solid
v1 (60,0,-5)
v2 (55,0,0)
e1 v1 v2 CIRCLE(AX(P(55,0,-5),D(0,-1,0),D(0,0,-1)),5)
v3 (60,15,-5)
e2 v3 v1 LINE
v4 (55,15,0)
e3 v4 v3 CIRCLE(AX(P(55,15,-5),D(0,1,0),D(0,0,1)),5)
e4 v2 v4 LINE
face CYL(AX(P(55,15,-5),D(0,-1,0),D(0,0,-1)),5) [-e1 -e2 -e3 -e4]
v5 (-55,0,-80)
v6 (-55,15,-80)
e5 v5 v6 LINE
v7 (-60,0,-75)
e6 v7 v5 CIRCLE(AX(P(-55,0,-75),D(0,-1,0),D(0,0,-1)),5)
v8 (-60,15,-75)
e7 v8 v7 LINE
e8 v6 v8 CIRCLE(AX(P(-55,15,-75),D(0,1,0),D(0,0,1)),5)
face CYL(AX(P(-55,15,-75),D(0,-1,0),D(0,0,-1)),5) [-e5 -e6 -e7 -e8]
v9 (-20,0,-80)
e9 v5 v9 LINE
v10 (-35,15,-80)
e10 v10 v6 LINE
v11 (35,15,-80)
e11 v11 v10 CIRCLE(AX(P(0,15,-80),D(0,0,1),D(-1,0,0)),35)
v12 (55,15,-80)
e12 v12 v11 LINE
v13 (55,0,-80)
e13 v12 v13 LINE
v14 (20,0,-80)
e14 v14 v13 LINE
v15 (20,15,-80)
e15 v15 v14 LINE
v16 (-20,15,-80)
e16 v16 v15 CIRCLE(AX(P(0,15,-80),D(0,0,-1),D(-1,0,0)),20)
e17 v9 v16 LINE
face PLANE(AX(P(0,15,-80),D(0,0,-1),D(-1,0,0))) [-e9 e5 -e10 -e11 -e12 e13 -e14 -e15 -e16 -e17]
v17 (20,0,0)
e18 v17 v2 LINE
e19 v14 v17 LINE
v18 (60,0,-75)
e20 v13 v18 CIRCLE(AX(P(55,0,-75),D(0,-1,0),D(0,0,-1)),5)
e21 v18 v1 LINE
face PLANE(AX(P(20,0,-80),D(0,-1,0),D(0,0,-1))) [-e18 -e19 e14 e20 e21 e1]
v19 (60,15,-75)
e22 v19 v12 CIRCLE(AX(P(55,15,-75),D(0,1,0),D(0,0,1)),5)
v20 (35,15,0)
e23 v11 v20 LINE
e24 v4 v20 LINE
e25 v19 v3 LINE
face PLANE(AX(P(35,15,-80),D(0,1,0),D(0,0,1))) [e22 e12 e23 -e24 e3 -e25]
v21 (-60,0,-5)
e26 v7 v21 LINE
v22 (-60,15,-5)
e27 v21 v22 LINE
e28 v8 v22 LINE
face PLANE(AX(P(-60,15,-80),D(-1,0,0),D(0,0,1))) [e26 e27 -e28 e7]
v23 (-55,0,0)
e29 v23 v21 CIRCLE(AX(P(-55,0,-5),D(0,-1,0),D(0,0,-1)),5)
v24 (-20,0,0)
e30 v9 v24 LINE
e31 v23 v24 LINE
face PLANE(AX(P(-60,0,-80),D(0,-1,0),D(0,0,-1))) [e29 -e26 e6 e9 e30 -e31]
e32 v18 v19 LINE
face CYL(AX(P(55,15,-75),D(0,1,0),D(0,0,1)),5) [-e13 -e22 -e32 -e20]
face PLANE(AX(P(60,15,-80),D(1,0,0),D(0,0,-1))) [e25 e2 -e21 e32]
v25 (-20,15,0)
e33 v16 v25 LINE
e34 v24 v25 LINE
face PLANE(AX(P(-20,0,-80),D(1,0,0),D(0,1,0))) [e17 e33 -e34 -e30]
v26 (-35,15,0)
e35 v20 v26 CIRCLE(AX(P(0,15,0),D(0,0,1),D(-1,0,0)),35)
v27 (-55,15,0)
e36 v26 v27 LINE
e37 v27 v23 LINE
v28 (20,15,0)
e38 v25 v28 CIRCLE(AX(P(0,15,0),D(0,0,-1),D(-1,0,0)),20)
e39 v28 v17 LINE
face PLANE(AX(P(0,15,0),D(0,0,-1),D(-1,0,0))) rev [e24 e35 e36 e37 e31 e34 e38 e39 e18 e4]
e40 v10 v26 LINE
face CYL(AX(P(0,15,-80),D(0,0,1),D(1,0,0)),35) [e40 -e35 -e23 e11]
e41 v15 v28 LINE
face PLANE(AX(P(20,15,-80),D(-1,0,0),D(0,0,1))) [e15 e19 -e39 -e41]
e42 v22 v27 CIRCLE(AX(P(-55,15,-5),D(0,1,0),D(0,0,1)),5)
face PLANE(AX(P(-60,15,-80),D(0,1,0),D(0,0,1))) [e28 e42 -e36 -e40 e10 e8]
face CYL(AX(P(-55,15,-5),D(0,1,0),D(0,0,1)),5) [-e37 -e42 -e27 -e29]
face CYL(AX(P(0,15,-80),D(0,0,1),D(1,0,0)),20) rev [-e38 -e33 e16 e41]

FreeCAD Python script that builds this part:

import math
import FreeCAD as App
import Part
import Sketcher

V = App.Vector


def edges_at(feature, points):
    """Names of the edges that pass closest to the given points."""
    edges = feature.Shape.Edges
    near = lambda p: min(range(len(edges)), key=lambda i: edges[i].distToShape(Part.Vertex(*p))[0])
    return sorted({f"Edge{near(p) + 1}" for p in points})

doc = App.newDocument("Part")
body = doc.addObject("PartDesign::Body", "Body")

# Sketch on XY plane
sketch1 = body.newObject("Sketcher::SketchObject", "Sketch")
sketch1.AttachmentSupport = (doc.getObject("XY_Plane"), [""])
sketch1.MapMode = "FlatFace"
sketch1.addGeometry([
    Part.LineSegment(V(-60, 0, 0), V(-20, 0, 0)),  # 0
    Part.LineSegment(V(-20, 0, 0), V(-20, 15, 0)),  # 1
    Part.ArcOfCircle(Part.Circle(V(0, 15, 0), V(0, 0, 1), 20), math.radians(0), math.radians(180)),  # 2
    Part.LineSegment(V(20, 15, 0), V(20, 0, 0)),  # 3
    Part.LineSegment(V(20, 0, 0), V(60, 0, 0)),  # 4
    Part.LineSegment(V(60, 0, 0), V(60, 15, 0)),  # 5
    Part.LineSegment(V(60, 15, 0), V(35, 15, 0)),  # 6
    Part.ArcOfCircle(Part.Circle(V(0, 15, 0), V(0, 0, 1), 35), math.radians(0), math.radians(180)),  # 7
    Part.LineSegment(V(-35, 15, 0), V(-60, 15, 0)),  # 8
    Part.LineSegment(V(-60, 15, 0), V(-60, 0, 0)),  # 9
], False)
sketch1.addConstraint([
    Sketcher.Constraint("Coincident", 0, 2, 1, 1),
    Sketcher.Constraint("Tangent", 1, 2, 2, 2),
    Sketcher.Constraint("Tangent", 2, 1, 3, 1),
    Sketcher.Constraint("Coincident", 3, 2, 4, 1),
    Sketcher.Constraint("Coincident", 4, 2, 5, 1),
    Sketcher.Constraint("Coincident", 5, 2, 6, 1),
    Sketcher.Constraint("Coincident", 6, 2, 7, 1),
    Sketcher.Constraint("Coincident", 7, 2, 8, 1),
    Sketcher.Constraint("Coincident", 8, 2, 9, 1),
    Sketcher.Constraint("Coincident", 9, 2, 0, 1),
    Sketcher.Constraint("Horizontal", 0),
    Sketcher.Constraint("Vertical", 1),
    Sketcher.Constraint("Vertical", 3),
    Sketcher.Constraint("Horizontal", 4),
    Sketcher.Constraint("Vertical", 5),
    Sketcher.Constraint("Horizontal", 6),
    Sketcher.Constraint("Horizontal", 8),
    Sketcher.Constraint("Vertical", 9),
    Sketcher.Constraint("Coincident", 7, 3, 2, 3),
    Sketcher.Constraint("Symmetric", 0, 2, 3, 2, -1, 1),
    Sketcher.Constraint("Symmetric", 5, 2, 8, 2, -2),
    Sketcher.Constraint("PointOnObject", 0, 2, -1),
    Sketcher.Constraint("Horizontal", 2, 1, 5, 2),
    Sketcher.Constraint("Radius", 2, 20.0),
    Sketcher.Constraint("Radius", 7, 35.0),
    Sketcher.Constraint("DistanceX", 0, 1, 0, 2, 40.0),
    Sketcher.Constraint("DistanceY", 1, 1, 1, 2, 15.0),
])
pad1 = body.newObject("PartDesign::Pad", "Pad")
pad1.Profile = sketch1
pad1.Length = 80
pad1.Reversed = True
doc.recompute()

fillet = body.newObject("PartDesign::Fillet", "Fillet")
fillet.Base = (pad1, edges_at(pad1, [
    (60, 7.5, 0),
    (-60, 7.5, 0),
    (60, 7.5, -80),
    (-60, 7.5, -80),
]))
fillet.Radius = 5

doc.recompute()
